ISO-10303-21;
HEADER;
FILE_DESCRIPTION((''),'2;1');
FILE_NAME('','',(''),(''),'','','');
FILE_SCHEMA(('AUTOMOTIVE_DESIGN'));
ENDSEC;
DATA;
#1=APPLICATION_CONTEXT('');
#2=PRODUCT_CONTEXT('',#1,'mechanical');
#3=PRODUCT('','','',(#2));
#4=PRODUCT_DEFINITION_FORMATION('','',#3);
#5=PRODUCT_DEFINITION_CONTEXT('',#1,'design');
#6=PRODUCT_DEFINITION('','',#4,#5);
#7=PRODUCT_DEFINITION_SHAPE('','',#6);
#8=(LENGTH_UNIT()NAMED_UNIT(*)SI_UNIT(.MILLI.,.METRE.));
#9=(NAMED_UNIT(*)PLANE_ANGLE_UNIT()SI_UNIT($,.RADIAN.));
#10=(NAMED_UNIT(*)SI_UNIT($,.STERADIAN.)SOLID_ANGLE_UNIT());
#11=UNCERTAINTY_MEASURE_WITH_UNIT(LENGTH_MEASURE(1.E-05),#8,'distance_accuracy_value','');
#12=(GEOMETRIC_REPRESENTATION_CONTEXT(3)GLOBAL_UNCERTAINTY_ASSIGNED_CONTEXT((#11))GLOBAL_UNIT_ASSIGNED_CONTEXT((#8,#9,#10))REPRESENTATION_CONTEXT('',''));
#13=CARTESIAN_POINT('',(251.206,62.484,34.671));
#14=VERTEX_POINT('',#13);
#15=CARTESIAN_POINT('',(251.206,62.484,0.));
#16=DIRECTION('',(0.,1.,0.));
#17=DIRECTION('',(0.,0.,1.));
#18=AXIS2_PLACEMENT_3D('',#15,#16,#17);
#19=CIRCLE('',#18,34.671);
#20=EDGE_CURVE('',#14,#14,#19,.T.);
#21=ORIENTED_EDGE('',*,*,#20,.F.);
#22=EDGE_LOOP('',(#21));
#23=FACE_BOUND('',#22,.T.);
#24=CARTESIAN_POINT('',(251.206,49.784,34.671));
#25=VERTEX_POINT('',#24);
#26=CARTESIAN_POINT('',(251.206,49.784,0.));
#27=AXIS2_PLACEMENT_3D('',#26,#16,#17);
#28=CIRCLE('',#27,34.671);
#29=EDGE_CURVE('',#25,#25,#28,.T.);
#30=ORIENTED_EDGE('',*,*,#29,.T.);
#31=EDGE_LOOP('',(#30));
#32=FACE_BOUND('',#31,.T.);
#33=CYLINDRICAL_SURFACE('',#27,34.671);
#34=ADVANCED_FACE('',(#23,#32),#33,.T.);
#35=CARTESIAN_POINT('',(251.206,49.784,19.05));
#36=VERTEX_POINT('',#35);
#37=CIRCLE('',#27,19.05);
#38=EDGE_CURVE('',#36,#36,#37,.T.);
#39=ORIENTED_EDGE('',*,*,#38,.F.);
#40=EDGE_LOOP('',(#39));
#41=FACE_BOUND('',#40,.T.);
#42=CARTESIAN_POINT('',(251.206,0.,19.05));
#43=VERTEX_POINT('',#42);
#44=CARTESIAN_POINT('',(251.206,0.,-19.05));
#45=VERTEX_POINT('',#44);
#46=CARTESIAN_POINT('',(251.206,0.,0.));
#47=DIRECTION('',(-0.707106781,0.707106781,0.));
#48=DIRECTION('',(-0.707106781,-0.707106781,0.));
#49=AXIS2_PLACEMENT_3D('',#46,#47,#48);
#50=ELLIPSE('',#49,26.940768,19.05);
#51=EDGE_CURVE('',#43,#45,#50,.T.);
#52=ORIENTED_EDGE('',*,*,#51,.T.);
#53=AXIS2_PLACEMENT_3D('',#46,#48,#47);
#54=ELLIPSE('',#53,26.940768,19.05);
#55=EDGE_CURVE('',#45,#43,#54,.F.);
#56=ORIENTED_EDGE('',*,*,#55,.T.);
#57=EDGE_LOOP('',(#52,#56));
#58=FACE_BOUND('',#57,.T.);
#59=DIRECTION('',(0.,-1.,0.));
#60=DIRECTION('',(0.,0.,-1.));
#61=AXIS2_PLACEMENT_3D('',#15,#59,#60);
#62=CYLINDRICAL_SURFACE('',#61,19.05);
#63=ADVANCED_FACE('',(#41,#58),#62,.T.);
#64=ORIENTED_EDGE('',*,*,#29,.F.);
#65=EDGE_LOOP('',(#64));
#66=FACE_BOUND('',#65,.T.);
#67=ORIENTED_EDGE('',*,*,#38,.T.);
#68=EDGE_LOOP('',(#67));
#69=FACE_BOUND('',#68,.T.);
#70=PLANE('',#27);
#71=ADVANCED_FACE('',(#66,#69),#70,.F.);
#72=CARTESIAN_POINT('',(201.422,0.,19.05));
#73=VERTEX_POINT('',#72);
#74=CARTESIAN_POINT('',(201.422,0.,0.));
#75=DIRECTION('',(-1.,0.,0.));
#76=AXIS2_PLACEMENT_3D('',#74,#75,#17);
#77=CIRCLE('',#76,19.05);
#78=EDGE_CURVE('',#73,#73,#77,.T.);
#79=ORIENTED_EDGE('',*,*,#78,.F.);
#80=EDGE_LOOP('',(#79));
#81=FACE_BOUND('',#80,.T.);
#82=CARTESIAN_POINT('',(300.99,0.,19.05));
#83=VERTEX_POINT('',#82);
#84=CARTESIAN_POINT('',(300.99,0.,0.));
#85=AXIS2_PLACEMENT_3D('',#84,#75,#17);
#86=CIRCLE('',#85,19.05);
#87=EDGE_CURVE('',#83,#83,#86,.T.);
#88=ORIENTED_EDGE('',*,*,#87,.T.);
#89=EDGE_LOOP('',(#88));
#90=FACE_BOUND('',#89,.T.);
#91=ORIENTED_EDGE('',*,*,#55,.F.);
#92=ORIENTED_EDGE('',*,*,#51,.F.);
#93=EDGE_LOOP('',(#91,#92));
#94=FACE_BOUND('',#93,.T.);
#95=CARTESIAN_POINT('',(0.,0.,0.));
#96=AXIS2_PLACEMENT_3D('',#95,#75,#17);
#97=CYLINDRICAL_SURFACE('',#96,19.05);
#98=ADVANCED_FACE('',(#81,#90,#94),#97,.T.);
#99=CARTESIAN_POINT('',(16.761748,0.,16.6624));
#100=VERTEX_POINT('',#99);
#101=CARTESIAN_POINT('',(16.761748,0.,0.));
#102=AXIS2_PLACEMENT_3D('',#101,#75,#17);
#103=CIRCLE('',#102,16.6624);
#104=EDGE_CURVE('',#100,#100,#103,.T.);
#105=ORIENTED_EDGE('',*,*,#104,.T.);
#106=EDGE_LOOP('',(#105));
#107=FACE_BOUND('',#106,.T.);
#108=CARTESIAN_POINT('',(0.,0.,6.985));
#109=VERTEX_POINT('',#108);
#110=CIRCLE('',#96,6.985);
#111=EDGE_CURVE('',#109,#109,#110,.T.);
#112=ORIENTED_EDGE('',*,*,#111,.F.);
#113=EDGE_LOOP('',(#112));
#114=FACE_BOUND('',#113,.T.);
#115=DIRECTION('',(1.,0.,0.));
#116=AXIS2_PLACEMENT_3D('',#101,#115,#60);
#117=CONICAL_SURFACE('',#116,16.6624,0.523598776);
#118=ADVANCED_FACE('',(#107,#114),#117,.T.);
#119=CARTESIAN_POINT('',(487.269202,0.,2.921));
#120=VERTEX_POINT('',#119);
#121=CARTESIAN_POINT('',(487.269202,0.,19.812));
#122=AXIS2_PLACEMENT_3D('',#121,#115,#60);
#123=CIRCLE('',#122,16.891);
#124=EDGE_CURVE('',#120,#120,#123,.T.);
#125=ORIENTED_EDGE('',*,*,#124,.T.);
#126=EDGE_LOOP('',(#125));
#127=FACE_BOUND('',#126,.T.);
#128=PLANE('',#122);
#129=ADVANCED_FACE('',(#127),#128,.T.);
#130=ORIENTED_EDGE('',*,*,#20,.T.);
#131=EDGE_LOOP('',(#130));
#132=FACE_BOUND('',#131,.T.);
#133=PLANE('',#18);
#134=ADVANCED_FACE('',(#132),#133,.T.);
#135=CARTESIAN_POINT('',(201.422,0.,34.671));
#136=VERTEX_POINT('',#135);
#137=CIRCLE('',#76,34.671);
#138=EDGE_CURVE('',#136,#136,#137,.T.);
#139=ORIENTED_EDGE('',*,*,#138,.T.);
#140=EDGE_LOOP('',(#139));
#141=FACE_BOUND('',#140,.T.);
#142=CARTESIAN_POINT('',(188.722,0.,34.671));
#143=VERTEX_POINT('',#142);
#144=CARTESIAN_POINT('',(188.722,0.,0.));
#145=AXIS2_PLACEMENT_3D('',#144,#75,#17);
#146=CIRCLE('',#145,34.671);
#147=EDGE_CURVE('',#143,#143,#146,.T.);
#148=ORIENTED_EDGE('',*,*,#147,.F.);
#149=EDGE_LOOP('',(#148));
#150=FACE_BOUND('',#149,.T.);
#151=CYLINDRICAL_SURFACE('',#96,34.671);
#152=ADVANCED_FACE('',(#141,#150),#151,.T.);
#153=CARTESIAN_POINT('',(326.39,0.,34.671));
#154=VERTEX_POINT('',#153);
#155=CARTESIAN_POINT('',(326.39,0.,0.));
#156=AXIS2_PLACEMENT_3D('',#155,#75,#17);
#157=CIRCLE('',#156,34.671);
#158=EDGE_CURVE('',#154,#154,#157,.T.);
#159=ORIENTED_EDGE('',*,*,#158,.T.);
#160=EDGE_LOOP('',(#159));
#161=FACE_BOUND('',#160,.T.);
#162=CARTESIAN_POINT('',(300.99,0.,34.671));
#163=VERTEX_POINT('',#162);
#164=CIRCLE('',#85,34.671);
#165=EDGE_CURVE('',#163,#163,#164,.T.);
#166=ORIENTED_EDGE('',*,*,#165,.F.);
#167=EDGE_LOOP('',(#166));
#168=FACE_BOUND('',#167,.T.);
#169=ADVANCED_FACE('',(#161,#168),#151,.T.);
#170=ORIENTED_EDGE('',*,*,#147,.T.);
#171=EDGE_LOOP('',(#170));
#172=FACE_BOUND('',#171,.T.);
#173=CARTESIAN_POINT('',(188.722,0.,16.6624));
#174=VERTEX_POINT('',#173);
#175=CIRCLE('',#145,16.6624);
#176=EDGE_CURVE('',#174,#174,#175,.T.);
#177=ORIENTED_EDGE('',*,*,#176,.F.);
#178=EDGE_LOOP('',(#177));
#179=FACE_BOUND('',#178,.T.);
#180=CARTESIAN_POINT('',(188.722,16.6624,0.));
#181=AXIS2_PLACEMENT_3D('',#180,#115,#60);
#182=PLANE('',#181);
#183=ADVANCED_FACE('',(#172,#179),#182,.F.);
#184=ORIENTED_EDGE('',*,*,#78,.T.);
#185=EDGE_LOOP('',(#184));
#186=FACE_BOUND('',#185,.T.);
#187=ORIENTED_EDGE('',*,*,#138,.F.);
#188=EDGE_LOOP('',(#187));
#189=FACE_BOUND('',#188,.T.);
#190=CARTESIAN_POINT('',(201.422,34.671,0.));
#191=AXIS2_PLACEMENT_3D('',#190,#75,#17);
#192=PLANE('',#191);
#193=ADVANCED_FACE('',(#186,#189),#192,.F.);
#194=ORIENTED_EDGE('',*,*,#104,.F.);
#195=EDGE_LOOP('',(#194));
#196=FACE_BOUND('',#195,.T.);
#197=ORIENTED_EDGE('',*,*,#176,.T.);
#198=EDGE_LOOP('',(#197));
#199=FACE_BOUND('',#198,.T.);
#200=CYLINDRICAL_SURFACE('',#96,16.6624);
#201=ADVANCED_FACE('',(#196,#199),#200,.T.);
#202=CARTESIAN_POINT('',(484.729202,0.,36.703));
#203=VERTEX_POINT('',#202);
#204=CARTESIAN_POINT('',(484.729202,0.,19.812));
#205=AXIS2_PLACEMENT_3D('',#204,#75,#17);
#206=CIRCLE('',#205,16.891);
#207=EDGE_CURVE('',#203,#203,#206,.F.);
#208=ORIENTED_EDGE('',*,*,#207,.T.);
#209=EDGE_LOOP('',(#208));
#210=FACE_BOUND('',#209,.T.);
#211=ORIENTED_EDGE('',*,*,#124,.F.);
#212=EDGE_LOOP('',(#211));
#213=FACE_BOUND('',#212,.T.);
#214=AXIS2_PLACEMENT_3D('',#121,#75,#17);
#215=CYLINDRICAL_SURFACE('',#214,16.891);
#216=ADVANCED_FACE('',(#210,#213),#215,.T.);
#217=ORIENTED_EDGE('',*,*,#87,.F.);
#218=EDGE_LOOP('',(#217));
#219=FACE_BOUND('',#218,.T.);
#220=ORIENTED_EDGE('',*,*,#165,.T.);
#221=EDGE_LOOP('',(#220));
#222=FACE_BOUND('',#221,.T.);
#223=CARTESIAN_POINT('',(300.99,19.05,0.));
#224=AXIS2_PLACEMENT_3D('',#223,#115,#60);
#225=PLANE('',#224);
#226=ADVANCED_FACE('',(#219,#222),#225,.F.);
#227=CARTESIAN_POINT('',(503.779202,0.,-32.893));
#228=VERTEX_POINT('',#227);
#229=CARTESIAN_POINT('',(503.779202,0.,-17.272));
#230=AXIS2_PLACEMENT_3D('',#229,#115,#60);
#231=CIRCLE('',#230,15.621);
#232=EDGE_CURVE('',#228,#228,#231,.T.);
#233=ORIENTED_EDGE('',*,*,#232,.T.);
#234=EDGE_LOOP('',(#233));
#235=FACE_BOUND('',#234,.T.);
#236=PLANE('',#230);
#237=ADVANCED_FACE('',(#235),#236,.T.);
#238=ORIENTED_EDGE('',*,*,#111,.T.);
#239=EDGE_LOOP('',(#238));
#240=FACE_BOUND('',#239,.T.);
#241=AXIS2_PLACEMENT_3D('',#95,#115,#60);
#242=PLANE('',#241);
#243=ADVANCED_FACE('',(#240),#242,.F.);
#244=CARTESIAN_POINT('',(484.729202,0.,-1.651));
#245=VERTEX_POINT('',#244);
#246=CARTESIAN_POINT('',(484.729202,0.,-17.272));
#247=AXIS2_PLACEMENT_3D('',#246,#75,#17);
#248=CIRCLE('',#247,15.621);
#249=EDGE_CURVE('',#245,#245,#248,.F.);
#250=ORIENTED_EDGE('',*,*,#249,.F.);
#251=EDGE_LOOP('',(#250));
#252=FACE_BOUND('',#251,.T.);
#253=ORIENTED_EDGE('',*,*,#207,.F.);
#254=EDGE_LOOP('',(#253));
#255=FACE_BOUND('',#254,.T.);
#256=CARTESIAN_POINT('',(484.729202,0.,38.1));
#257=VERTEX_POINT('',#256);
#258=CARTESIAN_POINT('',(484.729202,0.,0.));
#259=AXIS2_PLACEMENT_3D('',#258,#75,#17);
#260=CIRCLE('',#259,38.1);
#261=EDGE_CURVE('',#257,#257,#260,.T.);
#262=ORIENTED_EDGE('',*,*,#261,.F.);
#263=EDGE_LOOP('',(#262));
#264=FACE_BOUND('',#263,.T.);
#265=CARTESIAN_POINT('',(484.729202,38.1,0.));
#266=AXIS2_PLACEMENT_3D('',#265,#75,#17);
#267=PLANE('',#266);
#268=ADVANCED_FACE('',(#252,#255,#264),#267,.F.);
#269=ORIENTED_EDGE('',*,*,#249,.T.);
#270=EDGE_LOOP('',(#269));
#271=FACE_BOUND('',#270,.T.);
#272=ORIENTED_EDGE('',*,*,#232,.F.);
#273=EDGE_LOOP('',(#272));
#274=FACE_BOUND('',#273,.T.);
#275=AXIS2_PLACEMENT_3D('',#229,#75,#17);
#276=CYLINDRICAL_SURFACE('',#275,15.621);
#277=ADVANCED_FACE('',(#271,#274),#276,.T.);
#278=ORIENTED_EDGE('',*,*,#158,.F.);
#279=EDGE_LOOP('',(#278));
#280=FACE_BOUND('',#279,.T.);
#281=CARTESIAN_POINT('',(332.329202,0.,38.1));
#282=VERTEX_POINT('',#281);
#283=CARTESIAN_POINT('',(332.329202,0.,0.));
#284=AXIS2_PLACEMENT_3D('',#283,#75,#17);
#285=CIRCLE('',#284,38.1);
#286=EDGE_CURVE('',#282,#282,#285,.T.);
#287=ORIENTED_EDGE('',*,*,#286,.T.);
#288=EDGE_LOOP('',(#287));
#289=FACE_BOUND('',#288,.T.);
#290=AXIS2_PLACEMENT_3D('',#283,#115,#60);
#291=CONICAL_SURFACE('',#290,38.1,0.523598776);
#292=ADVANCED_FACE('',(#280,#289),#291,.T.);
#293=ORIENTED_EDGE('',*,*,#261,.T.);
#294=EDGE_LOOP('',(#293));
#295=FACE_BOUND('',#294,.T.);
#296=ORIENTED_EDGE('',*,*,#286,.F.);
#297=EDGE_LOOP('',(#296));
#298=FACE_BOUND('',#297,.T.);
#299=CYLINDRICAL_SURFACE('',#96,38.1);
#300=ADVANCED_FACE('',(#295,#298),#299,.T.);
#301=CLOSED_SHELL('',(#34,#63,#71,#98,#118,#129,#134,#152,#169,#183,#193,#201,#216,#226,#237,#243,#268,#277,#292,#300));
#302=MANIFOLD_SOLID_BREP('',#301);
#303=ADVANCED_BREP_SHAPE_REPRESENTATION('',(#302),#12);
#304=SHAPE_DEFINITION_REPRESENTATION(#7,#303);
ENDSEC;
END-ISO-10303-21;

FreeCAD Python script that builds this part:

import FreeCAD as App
import Part
import Sketcher
Q = App.Units.Quantity


def add_polygon(sketch, points):
    """Adds a closed chain of lines whose ends are joined by coincident constraints."""
    first, n = sketch.GeometryCount, len(points)
    for a, b in zip(points, points[1:] + points[:1]):
        sketch.addGeometry(Part.LineSegment(App.Vector(*a, 0), App.Vector(*b, 0)), False)
    for i in range(n):
        sketch.addConstraint(Sketcher.Constraint("Coincident", first + i, 2, first + (i + 1) % n, 1))

doc = App.newDocument("Part")
body = doc.addObject("PartDesign::Body", "Body")

# Sketch on XY plane
sketch1 = body.newObject("Sketcher::SketchObject", "Sketch")
sketch1.AttachmentSupport = (doc.getObject("XY_Plane"), [""])
sketch1.MapMode = "FlatFace"
add_polygon(sketch1, [(0, 7), (0, 0), (485, 0), (485, 38), (332, 38), (326, 35), (301, 35), (301, 19), (201, 19), (201, 35), (189, 35), (189, 17), (17, 17)])  # lines 0-12
sketch1.addConstraint(Sketcher.Constraint("Vertical", 0))
sketch1.addConstraint(Sketcher.Constraint("Horizontal", 1))
sketch1.addConstraint(Sketcher.Constraint("Vertical", 2))
sketch1.addConstraint(Sketcher.Constraint("Horizontal", 3))
sketch1.addConstraint(Sketcher.Constraint("Horizontal", 5))
sketch1.addConstraint(Sketcher.Constraint("Vertical", 6))
sketch1.addConstraint(Sketcher.Constraint("Horizontal", 7))
sketch1.addConstraint(Sketcher.Constraint("Vertical", 8))
sketch1.addConstraint(Sketcher.Constraint("Horizontal", 9))
sketch1.addConstraint(Sketcher.Constraint("Vertical", 10))
sketch1.addConstraint(Sketcher.Constraint("Horizontal", 11))
sketch1.addConstraint(Sketcher.Constraint("Coincident", 0, 2, -1, 1))
sketch1.addConstraint(Sketcher.Constraint("Parallel", 4, 12))
sketch1.addConstraint(Sketcher.Constraint("Horizontal", 5, 2, 8, 2))
sketch1.addConstraint(Sketcher.Constraint("DistanceX", 3, 2, 3, 1, Q("6 in")))
sketch1.addConstraint(Sketcher.Constraint("DistanceX", 5, 2, 5, 1, Q("1 in")))
sketch1.addConstraint(Sketcher.Constraint("DistanceX", 9, 2, 9, 1, Q("0.5 in")))
sketch1.addConstraint(Sketcher.Constraint("DistanceY", 2, 1, 2, 2, Q("1.5 in")))
sketch1.addConstraint(Sketcher.Constraint("Angle", 4, Q("-150 deg")))
sketch1.addConstraint(Sketcher.Constraint("DistanceX", 7, 2, 7, 1, Q("3.92 in")))
sketch1.addConstraint(Sketcher.Constraint("Distance", 4, Q("0.27 in")))
sketch1.addConstraint(Sketcher.Constraint("DistanceY", 0, 2, 0, 1, Q("0.275 in")))
sketch1.addConstraint(Sketcher.Constraint("DistanceY", 6, 2, 6, 1, Q("0.615 in")))
sketch1.addConstraint(Sketcher.Constraint("DistanceY", 10, 2, 10, 1, Q("0.709 in")))
sketch1.addConstraint(Sketcher.Constraint("DistanceX", -1, 1, 4, 2, Q("12.85 in")))
revolution = body.newObject("PartDesign::Revolution", "Revolution")
revolution.Profile = sketch1
revolution.ReferenceAxis = (sketch1, ["H_Axis"])
revolution.Angle = 360

# Sketch on XZ plane
sketch2 = body.newObject("Sketcher::SketchObject", "Sketch001")
sketch2.AttachmentSupport = (doc.getObject("XZ_Plane"), [""])
sketch2.MapMode = "FlatFace"
sketch2.addGeometry(Part.Circle(App.Vector(251, 0, 0), App.Vector(0, 0, 1), 19), False)
sketch2.addConstraint(Sketcher.Constraint("PointOnObject", 0, 3, -1))
sketch2.addConstraint(Sketcher.Constraint("Diameter", 0, Q("1.5 in")))
sketch2.addConstraint(Sketcher.Constraint("DistanceX", -1, 1, 0, 3, Q("9.89 in")))
pad1 = body.newObject("PartDesign::Pad", "Pad")
pad1.Profile = sketch2
pad1.Length = Q("2.46 in")
pad1.Reversed = True

# Sketch on XZ plane
sketch3 = body.newObject("Sketcher::SketchObject", "Sketch002")
sketch3.AttachmentSupport = (doc.getObject("XZ_Plane"), [""])
sketch3.MapMode = "FlatFace"
sketch3.AttachmentOffset = App.Placement(App.Vector(0, 0, -2.46 * 25.4), App.Rotation())
sketch3.addGeometry(Part.Circle(App.Vector(251, 0, 0), App.Vector(0, 0, 1), 35), False)
sketch3.addConstraint(Sketcher.Constraint("PointOnObject", 0, 3, -1))
sketch3.addConstraint(Sketcher.Constraint("Diameter", 0, Q("2.73 in")))
sketch3.addConstraint(Sketcher.Constraint("DistanceX", -1, 1, 0, 3, Q("9.89 in")))
pad2 = body.newObject("PartDesign::Pad", "Pad001")
pad2.Profile = sketch3
pad2.Length = Q("0.5 in")

# Sketch on YZ plane
sketch4 = body.newObject("Sketcher::SketchObject", "Sketch003")
sketch4.AttachmentSupport = (doc.getObject("YZ_Plane"), [""])
sketch4.MapMode = "FlatFace"
sketch4.AttachmentOffset = App.Placement(App.Vector(0, 0, 484.729202), App.Rotation())
sketch4.addGeometry(Part.Circle(App.Vector(0, -17, 0), App.Vector(0, 0, 1), 16), False)
sketch4.addConstraint(Sketcher.Constraint("PointOnObject", 0, 3, -2))
sketch4.addConstraint(Sketcher.Constraint("Diameter", 0, Q("1.23 in")))
sketch4.addConstraint(Sketcher.Constraint("DistanceY", 0, 3, -1, 1, Q("0.68 in")))
pad3 = body.newObject("PartDesign::Pad", "Pad002")
pad3.Profile = sketch4
pad3.Length = Q("0.75 in")

# Sketch on YZ plane
sketch5 = body.newObject("Sketcher::SketchObject", "Sketch004")
sketch5.AttachmentSupport = (doc.getObject("YZ_Plane"), [""])
sketch5.MapMode = "FlatFace"
sketch5.AttachmentOffset = App.Placement(App.Vector(0, 0, 484.729202), App.Rotation())
sketch5.addGeometry(Part.Circle(App.Vector(0, 20, 0), App.Vector(0, 0, 1), 17), False)
sketch5.addConstraint(Sketcher.Constraint("PointOnObject", 0, 3, -2))
sketch5.addConstraint(Sketcher.Constraint("Diameter", 0, Q("1.33 in")))
sketch5.addConstraint(Sketcher.Constraint("DistanceY", -1, 1, 0, 3, Q("0.78 in")))
pad4 = body.newObject("PartDesign::Pad", "Pad003")
pad4.Profile = sketch5
pad4.Length = Q("0.1 in")

doc.recompute()
